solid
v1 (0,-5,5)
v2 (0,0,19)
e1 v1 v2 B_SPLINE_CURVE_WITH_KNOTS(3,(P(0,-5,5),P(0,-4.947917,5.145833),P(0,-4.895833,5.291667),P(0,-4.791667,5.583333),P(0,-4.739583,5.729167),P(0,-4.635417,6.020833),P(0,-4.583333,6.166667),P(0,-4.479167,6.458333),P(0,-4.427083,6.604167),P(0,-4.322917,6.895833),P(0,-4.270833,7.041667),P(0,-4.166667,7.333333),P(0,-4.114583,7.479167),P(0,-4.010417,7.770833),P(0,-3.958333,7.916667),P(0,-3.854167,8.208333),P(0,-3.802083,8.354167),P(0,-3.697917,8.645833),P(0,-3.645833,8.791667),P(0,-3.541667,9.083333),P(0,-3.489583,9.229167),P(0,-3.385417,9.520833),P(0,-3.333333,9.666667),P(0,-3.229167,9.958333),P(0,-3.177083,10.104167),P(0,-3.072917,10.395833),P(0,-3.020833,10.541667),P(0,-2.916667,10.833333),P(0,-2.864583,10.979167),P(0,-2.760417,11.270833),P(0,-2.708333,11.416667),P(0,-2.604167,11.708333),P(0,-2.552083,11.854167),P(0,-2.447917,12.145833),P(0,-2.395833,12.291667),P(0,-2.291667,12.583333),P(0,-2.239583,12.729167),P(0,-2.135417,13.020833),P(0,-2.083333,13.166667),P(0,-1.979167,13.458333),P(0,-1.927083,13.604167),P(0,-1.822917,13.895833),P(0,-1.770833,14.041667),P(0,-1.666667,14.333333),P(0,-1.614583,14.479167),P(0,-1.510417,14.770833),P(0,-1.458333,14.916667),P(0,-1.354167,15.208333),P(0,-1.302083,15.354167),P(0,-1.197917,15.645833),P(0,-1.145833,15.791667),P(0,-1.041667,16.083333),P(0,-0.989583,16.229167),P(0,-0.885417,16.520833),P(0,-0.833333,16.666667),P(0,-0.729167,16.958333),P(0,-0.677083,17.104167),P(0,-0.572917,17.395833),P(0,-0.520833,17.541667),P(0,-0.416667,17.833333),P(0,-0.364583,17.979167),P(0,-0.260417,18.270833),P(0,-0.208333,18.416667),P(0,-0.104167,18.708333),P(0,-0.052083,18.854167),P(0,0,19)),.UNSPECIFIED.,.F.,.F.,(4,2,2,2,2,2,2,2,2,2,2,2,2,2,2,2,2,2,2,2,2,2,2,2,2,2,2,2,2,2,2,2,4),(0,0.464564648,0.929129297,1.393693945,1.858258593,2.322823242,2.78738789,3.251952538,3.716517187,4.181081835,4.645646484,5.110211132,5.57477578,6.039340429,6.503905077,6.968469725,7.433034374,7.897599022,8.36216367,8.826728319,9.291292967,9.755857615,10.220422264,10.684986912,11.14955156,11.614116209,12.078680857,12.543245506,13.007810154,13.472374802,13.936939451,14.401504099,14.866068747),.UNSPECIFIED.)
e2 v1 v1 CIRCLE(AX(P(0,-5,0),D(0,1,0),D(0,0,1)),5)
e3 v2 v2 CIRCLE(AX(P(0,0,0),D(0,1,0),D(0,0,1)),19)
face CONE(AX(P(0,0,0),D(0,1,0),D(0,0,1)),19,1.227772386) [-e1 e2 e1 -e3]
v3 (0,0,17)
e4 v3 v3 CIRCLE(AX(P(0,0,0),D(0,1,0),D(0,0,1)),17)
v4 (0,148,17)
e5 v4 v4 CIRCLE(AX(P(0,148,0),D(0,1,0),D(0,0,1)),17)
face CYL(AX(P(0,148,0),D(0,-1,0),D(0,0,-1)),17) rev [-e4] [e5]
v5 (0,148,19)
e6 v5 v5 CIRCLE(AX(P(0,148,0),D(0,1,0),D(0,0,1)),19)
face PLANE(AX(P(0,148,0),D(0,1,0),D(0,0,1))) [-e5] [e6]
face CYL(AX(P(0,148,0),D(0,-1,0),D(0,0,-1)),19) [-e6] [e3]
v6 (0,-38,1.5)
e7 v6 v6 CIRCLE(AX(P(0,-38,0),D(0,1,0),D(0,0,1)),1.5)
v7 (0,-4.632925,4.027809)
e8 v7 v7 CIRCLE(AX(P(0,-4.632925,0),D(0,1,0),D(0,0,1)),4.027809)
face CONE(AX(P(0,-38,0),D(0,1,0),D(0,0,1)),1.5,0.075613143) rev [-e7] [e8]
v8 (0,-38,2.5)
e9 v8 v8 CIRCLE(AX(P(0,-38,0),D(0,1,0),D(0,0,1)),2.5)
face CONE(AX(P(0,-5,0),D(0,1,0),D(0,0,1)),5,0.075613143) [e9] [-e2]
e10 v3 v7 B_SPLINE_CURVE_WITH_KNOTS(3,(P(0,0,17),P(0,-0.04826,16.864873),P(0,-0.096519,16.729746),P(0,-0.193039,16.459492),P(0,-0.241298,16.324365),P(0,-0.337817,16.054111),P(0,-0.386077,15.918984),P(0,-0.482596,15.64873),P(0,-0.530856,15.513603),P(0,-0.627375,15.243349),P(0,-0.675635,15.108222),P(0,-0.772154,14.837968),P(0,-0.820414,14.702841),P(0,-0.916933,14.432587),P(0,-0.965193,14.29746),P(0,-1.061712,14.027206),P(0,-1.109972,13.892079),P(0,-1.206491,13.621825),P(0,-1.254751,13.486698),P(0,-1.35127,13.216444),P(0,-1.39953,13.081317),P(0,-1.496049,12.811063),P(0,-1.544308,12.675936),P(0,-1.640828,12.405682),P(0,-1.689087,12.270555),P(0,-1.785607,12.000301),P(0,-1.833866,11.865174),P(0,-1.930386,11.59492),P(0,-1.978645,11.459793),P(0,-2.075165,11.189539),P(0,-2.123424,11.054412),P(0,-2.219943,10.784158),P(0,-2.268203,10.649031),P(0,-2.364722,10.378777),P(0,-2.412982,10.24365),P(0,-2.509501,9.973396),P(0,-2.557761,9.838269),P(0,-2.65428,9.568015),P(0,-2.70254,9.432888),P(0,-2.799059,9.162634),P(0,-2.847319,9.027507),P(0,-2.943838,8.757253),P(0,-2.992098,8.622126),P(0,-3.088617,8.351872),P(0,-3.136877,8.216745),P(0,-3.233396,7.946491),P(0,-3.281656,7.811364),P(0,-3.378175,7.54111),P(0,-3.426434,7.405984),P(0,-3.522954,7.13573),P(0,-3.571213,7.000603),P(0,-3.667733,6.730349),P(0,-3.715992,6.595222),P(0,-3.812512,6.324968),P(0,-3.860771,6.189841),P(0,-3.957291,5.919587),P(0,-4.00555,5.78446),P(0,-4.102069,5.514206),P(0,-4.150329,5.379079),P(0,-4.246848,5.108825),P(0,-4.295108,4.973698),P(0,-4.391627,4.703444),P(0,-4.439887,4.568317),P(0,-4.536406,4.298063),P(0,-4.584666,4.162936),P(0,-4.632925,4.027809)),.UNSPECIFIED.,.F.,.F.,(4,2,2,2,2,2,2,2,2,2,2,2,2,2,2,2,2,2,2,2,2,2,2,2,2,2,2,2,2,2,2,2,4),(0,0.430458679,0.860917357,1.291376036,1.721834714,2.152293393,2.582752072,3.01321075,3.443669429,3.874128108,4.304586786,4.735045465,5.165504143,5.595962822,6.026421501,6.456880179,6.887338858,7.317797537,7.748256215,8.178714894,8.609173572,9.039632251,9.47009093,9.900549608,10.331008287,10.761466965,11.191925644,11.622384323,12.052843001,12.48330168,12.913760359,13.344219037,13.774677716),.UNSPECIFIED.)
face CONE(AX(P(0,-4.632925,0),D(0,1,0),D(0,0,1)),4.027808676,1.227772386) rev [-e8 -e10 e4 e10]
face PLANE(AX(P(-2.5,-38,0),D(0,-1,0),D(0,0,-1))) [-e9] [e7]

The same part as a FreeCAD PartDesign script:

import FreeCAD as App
import Part
import Sketcher
from FreeCAD import Vector
Q = App.Units.Quantity

doc = App.newDocument("Part")
params = doc.addObject("Spreadsheet::Sheet", "Params")
for row, (alias, value) in enumerate([
    ("sketch1_diameter", "38 mm"),
    ("sketch1_diameter2", "34 mm"),
    ("pad1_length", "148 mm"),
    ("sketch2_width", "2 mm"),
    ("sketch2_width2", "1 mm"),
    ("revolution_angle", "360 deg"),
], start=1):
    params.set(f"A{row}", alias)
    params.set(f"B{row}", "=" + value)
    params.setAlias(f"B{row}", alias)

body = doc.addObject("PartDesign::Body", "Body")

# Sketch on XZ plane
sketch1 = doc.addObject("Sketcher::SketchObject", "Sketch")
body.addObject(sketch1)
sketch1.AttachmentSupport = (doc.XZ_Plane, [""])
sketch1.MapMode = "FlatFace"
sketch1.addGeometry([
    Part.Circle(Vector(0, 0, 0), Vector(0, 0, 1), 19),
    Part.Circle(Vector(0, 0, 0), Vector(0, 0, 1), 17),
], False)
sketch1.addConstraint([
    Sketcher.Constraint("Coincident", 0, 3, -1, 1),
    Sketcher.Constraint("Coincident", 1, 3, -1, 1),
    Sketcher.Constraint("Diameter", 0, Q("38 mm")),
    Sketcher.Constraint("Diameter", 1, Q("34 mm")),
])
sketch1.setExpression("Constraints[2]", "Params.sketch1_diameter")
sketch1.setExpression("Constraints[3]", "Params.sketch1_diameter2")
pad1 = doc.addObject("PartDesign::Pad", "Pad")
body.addObject(pad1)
pad1.Profile = sketch1
pad1.setExpression("Length", "Params.pad1_length")
pad1.Reversed = True

# Sketch on XY plane
sketch2 = doc.addObject("Sketcher::SketchObject", "Sketch001")
body.addObject(sketch2)
sketch2.AttachmentSupport = (doc.XY_Plane, [""])
sketch2.MapMode = "FlatFace"
sketch2.addGeometry([
    Part.LineSegment(Vector(-17, 0, 0), Vector(-19, 0, 0)),  # 0
    Part.LineSegment(Vector(-19, 0, 0), Vector(-5, -5, 0)),  # 1
    Part.LineSegment(Vector(-5, -5, 0), Vector(-2.5, -38, 0)),  # 2
    Part.LineSegment(Vector(-2.5, -38, 0), Vector(-1.5, -38, 0)),  # 3
    Part.LineSegment(Vector(-1.5, -38, 0), Vector(-4, -4.6, 0)),  # 4
    Part.LineSegment(Vector(-4, -4.6, 0), Vector(-17, 0, 0)),  # 5
], False)
sketch2.addConstraint([
    Sketcher.Constraint("Coincident", 0, 2, 1, 1),
    Sketcher.Constraint("Coincident", 1, 2, 2, 1),
    Sketcher.Constraint("Coincident", 2, 2, 3, 1),
    Sketcher.Constraint("Coincident", 3, 2, 4, 1),
    Sketcher.Constraint("Coincident", 4, 2, 5, 1),
    Sketcher.Constraint("Coincident", 5, 2, 0, 1),
    Sketcher.Constraint("Horizontal", 0),
    Sketcher.Constraint("Horizontal", 3),
    Sketcher.Constraint("PointOnObject", 0, 2, -1),
    Sketcher.Constraint("Parallel", 2, 4),
    Sketcher.Constraint("Parallel", 1, 5),
    Sketcher.Constraint("DistanceX", 0, 2, 0, 1, Q("2 mm")),
    Sketcher.Constraint("DistanceX", 3, 1, 3, 2, Q("1 mm")),
    Sketcher.Constraint("DistanceX", 0, 2, -1, 1, Q("19 mm")),
    Sketcher.Constraint("DistanceX", 1, 2, -1, 1, Q("5 mm")),
    Sketcher.Constraint("DistanceY", 1, 2, -1, 1, Q("5 mm")),
    Sketcher.Constraint("DistanceY", 2, 2, -1, 1, Q("38 mm")),
    Sketcher.Constraint("DistanceX", 2, 2, -1, 1, Q("2.5 mm")),
])
sketch2.setExpression("Constraints[11]", "Params.sketch2_width")
sketch2.setExpression("Constraints[12]", "Params.sketch2_width2")
revolution = doc.addObject("PartDesign::Revolution", "Revolution")
body.addObject(revolution)
revolution.Profile = sketch2
revolution.ReferenceAxis = (sketch2, ["V_Axis"])
revolution.setExpression("Angle", "Params.revolution_angle")

doc.recompute()
